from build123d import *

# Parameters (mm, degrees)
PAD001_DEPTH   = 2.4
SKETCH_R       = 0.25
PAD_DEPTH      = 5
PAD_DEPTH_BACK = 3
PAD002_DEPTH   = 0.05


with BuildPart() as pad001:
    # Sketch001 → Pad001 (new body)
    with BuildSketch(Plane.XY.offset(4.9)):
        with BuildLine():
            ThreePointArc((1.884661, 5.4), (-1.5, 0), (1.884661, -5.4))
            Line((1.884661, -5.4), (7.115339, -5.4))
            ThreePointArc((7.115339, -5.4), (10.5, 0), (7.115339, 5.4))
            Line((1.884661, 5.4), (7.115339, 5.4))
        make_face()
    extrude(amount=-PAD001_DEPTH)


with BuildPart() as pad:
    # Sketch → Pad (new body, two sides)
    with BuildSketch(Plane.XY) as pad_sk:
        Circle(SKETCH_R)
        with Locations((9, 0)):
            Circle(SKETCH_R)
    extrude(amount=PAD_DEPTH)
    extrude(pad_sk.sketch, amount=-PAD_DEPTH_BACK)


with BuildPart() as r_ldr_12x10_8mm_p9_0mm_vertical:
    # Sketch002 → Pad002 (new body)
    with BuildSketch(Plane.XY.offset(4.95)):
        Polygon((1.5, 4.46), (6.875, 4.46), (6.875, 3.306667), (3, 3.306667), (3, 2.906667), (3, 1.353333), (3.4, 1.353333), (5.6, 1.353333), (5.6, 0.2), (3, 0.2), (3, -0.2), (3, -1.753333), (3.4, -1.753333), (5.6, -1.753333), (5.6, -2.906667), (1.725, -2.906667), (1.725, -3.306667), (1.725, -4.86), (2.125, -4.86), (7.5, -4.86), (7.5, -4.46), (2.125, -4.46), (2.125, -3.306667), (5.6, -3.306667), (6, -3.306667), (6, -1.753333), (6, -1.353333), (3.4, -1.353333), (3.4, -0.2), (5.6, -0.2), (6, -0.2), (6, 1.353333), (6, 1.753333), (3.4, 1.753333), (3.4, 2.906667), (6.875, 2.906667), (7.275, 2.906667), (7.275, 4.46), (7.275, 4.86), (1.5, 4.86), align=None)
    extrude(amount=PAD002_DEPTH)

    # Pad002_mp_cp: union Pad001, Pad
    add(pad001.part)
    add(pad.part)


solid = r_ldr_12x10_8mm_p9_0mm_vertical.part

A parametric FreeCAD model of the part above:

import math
import FreeCAD as App
import Part
import Sketcher
Q = App.Units.Quantity


def add_polygon(sketch, points):
    """Adds a closed chain of lines whose ends are joined by coincident constraints."""
    first, n = sketch.GeometryCount, len(points)
    for a, b in zip(points, points[1:] + points[:1]):
        sketch.addGeometry(Part.LineSegment(App.Vector(*a, 0), App.Vector(*b, 0)), False)
    for i in range(n):
        sketch.addConstraint(Sketcher.Constraint("Coincident", first + i, 2, first + (i + 1) % n, 1))

doc = App.newDocument("Part")
body = doc.addObject("PartDesign::Body", "Body")

# Sketch on XY plane
sketch1 = doc.addObject("Sketcher::SketchObject", "Sketch")
body.addObject(sketch1)
sketch1.AttachmentSupport = (doc.XY_Plane, [""])
sketch1.MapMode = "FlatFace"
sketch1.AttachmentOffset = App.Placement(App.Vector(0, 0, 4.9), App.Rotation())
sketch1.addGeometry([
    Part.ArcOfCircle(Part.Circle(App.Vector(4, 0, 0), App.Vector(0, 0, 1), 6), math.radians(116), math.radians(244)),
    Part.LineSegment(App.Vector(2, -5, 0), App.Vector(7, -5, 0)),
    Part.ArcOfCircle(Part.Circle(App.Vector(5, 0, 0), App.Vector(0, 0, 1), 6), math.radians(-64), math.radians(64)),
    Part.LineSegment(App.Vector(7, 5, 0), App.Vector(2, 5, 0)),
], False)
sketch1.addConstraint([
    Sketcher.Constraint("Coincident", 0, 2, 1, 1),
    Sketcher.Constraint("Coincident", 1, 2, 2, 1),
    Sketcher.Constraint("Coincident", 2, 2, 3, 1),
    Sketcher.Constraint("Coincident", 3, 2, 0, 1),
    Sketcher.Constraint("Horizontal", 1),
    Sketcher.Constraint("Horizontal", 3),
    Sketcher.Constraint("Coincident", 2, 3, 0, 3),
    Sketcher.Constraint("Equal", 0, 2),
    Sketcher.Constraint("Symmetric", 1, 2, 2, 2, -1),
    Sketcher.Constraint("Radius", 0, Q("6 mm")),
    Sketcher.Constraint("DistanceX", -1, 1, 0, 3, Q("4.5 mm")),
    Sketcher.Constraint("DistanceY", 0, 2, -1, 1, Q("5.4 mm")),
])
pad1 = doc.addObject("PartDesign::Pad", "Pad")
body.addObject(pad1)
pad1.Profile = sketch1
pad1.Length = 2.4
pad1.Reversed = True
body2 = doc.addObject("PartDesign::Body", "Body001")
body2.AllowCompound = True

# Sketch on XY plane
sketch2 = doc.addObject("Sketcher::SketchObject", "Sketch001")
body2.addObject(sketch2)
sketch2.AttachmentSupport = (doc.getObject("XY_Plane001"), [""])
sketch2.MapMode = "FlatFace"
sketch2.addGeometry([
    Part.Circle(App.Vector(0, 0, 0), App.Vector(0, 0, 1), 0.25),
    Part.Circle(App.Vector(9, 0, 0), App.Vector(0, 0, 1), 0.25),
], False)
sketch2.addConstraint([
    Sketcher.Constraint("Coincident", 0, 3, -1, 1),
    Sketcher.Constraint("Equal", 0, 1),
    Sketcher.Constraint("PointOnObject", 1, 3, -1),
    Sketcher.Constraint("Diameter", 0, Q("0.5 mm")),
    Sketcher.Constraint("DistanceX", -1, 1, 1, 3, Q("9 mm")),
])
pad2 = doc.addObject("PartDesign::Pad", "Pad001")
body2.addObject(pad2)
pad2.Profile = sketch2
pad2.Type = "TwoLengths"
pad2.Length = 5
pad2.Length2 = 3
body3 = doc.addObject("PartDesign::Body", "Body002")
body3.AllowCompound = True

# Sketch on XY plane
sketch3 = doc.addObject("Sketcher::SketchObject", "Sketch002")
body3.addObject(sketch3)
sketch3.AttachmentSupport = (doc.getObject("XY_Plane002"), [""])
sketch3.MapMode = "FlatFace"
sketch3.AttachmentOffset = App.Placement(App.Vector(0, 0, 4.95), App.Rotation())
add_polygon(sketch3, [(1.5, 4.46), (6.88, 4.46), (6.88, 3.31), (3, 3.31), (3, 1.35), (5.6, 1.35), (5.6, 0.2), (3, 0.2), (3, -1.75), (5.6, -1.75), (5.6, -2.91), (1.73, -2.91), (1.73, -4.86), (7.5, -4.86), (7.5, -4.46), (2.12, -4.46), (2.12, -3.31), (6, -3.31), (6, -1.35), (3.4, -1.35), (3.4, -0.2), (6, -0.2), (6, 1.75), (3.4, 1.75), (3.4, 2.91), (7.28, 2.91), (7.28, 4.86), (1.5, 4.86)])  # lines 0-27
sketch3.addConstraint([
    Sketcher.Constraint("Horizontal", 0),
    Sketcher.Constraint("Vertical", 1),
    Sketcher.Constraint("Horizontal", 2),
    Sketcher.Constraint("Vertical", 3),
    Sketcher.Constraint("Horizontal", 4),
    Sketcher.Constraint("Vertical", 5),
    Sketcher.Constraint("Horizontal", 6),
    Sketcher.Constraint("Vertical", 7),
    Sketcher.Constraint("Horizontal", 8),
    Sketcher.Constraint("Vertical", 9),
    Sketcher.Constraint("Horizontal", 10),
    Sketcher.Constraint("Vertical", 11),
    Sketcher.Constraint("Horizontal", 12),
    Sketcher.Constraint("Vertical", 13),
    Sketcher.Constraint("Horizontal", 14),
    Sketcher.Constraint("Vertical", 15),
    Sketcher.Constraint("Horizontal", 16),
    Sketcher.Constraint("Vertical", 17),
    Sketcher.Constraint("Horizontal", 18),
    Sketcher.Constraint("Vertical", 19),
    Sketcher.Constraint("Horizontal", 20),
    Sketcher.Constraint("Vertical", 21),
    Sketcher.Constraint("Horizontal", 22),
    Sketcher.Constraint("Vertical", 23),
    Sketcher.Constraint("Horizontal", 24),
    Sketcher.Constraint("Vertical", 25),
    Sketcher.Constraint("Horizontal", 26),
    Sketcher.Constraint("Vertical", 27),
    Sketcher.Constraint("Vertical", 3, 2, 6, 2),
    Sketcher.Constraint("Vertical", 5, 2, 8, 2),
    Sketcher.Constraint("Vertical", 17, 2, 20, 2),
    Sketcher.Constraint("Vertical", 19, 2, 22, 2),
    Sketcher.Constraint("Equal", 2, 10),
    Sketcher.Constraint("Equal", 0, 14),
    Sketcher.Constraint("Equal", 10, 16),
    Sketcher.Constraint("Equal", 8, 18),
    Sketcher.Constraint("Equal", 16, 24),
    Sketcher.Constraint("Equal", 1, 5),
    Sketcher.Constraint("Equal", 3, 7),
    Sketcher.Constraint("Equal", 5, 9),
    Sketcher.Constraint("Equal", 7, 11),
    Sketcher.Constraint("Equal", 9, 15),
    Sketcher.Constraint("Equal", 11, 17),
    Sketcher.Constraint("Equal", 15, 19),
    Sketcher.Constraint("Equal", 17, 21),
    Sketcher.Constraint("Equal", 19, 23),
    Sketcher.Constraint("Equal", 21, 25),
    Sketcher.Constraint("DistanceX", 4, 1, 4, 2, Q("2.6 mm")),
    Sketcher.Constraint("DistanceY", 13, 1, 13, 2, Q("0.4 mm")),
    Sketcher.Constraint("DistanceX", -1, 1, 2, 2, Q("3 mm")),
    Sketcher.Constraint("DistanceX", -1, 1, 16, 2, Q("6 mm")),
    Sketcher.Constraint("DistanceY", -1, 1, 5, 2, Q("0.2 mm")),
    Sketcher.Constraint("DistanceX", -1, 1, 12, 2, Q("7.5 mm")),
    Sketcher.Constraint("DistanceY", 19, 2, -1, 1, Q("0.2 mm")),
    Sketcher.Constraint("DistanceX", 0, 1, 0, 2, Q("5.375 mm")),
    Sketcher.Constraint("DistanceY", -1, 1, 0, 2, Q("4.46 mm")),
])
pad3 = doc.addObject("PartDesign::Pad", "Pad002")
body3.addObject(pad3)
pad3.Profile = sketch3
pad3.Length = 0.05
doc.recompute()

boolean = doc.addObject("PartDesign::Boolean", "Boolean")
body3.addObject(boolean)
boolean.Type = "Fuse"
boolean.addObjects([body])
doc.recompute()

boolean2 = doc.addObject("PartDesign::Boolean", "Boolean001")
body3.addObject(boolean2)
boolean2.Type = "Fuse"
boolean2.addObjects([body2])

doc.recompute()
